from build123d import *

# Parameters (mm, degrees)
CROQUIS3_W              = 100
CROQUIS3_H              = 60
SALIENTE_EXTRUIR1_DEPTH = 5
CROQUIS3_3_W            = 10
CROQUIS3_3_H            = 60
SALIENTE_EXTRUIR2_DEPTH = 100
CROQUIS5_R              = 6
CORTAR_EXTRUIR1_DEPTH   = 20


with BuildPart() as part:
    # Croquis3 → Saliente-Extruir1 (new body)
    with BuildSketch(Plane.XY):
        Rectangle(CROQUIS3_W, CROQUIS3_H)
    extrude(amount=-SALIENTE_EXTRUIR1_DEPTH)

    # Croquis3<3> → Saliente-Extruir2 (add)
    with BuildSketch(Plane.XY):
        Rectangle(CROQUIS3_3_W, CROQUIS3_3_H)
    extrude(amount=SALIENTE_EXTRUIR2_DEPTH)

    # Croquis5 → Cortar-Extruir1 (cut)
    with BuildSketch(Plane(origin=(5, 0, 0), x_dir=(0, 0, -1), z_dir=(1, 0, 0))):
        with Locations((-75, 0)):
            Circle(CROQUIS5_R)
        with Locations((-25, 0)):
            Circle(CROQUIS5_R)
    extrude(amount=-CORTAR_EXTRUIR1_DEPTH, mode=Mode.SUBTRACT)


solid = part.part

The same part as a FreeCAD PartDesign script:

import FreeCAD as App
import Part
import Sketcher

V = App.Vector


def add_polygon(sketch, points):
    """Adds a closed chain of lines whose ends are joined by coincident constraints."""
    first, n = sketch.GeometryCount, len(points)
    for a, b in zip(points, points[1:] + points[:1]):
        sketch.addGeometry(Part.LineSegment(App.Vector(*a, 0), App.Vector(*b, 0)), False)
    for i in range(n):
        sketch.addConstraint(Sketcher.Constraint("Coincident", first + i, 2, first + (i + 1) % n, 1))

doc = App.newDocument("Part")
body = doc.addObject("PartDesign::Body", "Body")

# Sketch on XY plane
sketch1 = body.newObject("Sketcher::SketchObject", "Sketch")
sketch1.AttachmentSupport = (doc.getObject("XY_Plane"), [""])
sketch1.MapMode = "FlatFace"
add_polygon(sketch1, [(-50, 30), (-50, -30), (50, -30), (50, 30)])  # lines 0-3
sketch1.addConstraint([
    Sketcher.Constraint("Vertical", 0),
    Sketcher.Constraint("Horizontal", 1),
    Sketcher.Constraint("Vertical", 2),
    Sketcher.Constraint("Horizontal", 3),
    Sketcher.Constraint("Symmetric", 0, 2, 2, 2, -1, 1),
    Sketcher.Constraint("DistanceX", 1, 1, 1, 2, 100.0),
    Sketcher.Constraint("DistanceY", 0, 2, 0, 1, 60.0),
])
pad1 = body.newObject("PartDesign::Pad", "Pad")
pad1.Profile = sketch1
pad1.Length = 5
pad1.Reversed = True

# Sketch on XY plane
sketch2 = body.newObject("Sketcher::SketchObject", "Sketch001")
sketch2.AttachmentSupport = (doc.getObject("XY_Plane"), [""])
sketch2.MapMode = "FlatFace"
add_polygon(sketch2, [(-5, 30), (-5, -30), (5, -30), (5, 30)])  # lines 0-3
sketch2.addConstraint([
    Sketcher.Constraint("Vertical", 0),
    Sketcher.Constraint("Horizontal", 1),
    Sketcher.Constraint("Vertical", 2),
    Sketcher.Constraint("Horizontal", 3),
    Sketcher.Constraint("Symmetric", 0, 2, 2, 2, -1, 1),
    Sketcher.Constraint("DistanceX", 1, 1, 1, 2, 10.0),
    Sketcher.Constraint("DistanceY", 0, 2, 0, 1, 60.0),
])
pad2 = body.newObject("PartDesign::Pad", "Pad001")
pad2.Profile = sketch2
pad2.Length = 100

# Sketch on YZ plane
sketch3 = body.newObject("Sketcher::SketchObject", "Sketch002")
sketch3.AttachmentSupport = (doc.getObject("YZ_Plane"), [""])
sketch3.MapMode = "FlatFace"
sketch3.AttachmentOffset = App.Placement(V(0, 0, 5), App.Rotation())
sketch3.addGeometry([
    Part.Circle(V(0, 75, 0), V(0, 0, 1), 6),
    Part.Circle(V(0, 25, 0), V(0, 0, 1), 6),
], False)
sketch3.addConstraint([
    Sketcher.Constraint("Equal", 0, 1),
    Sketcher.Constraint("PointOnObject", 0, 3, -2),
    Sketcher.Constraint("PointOnObject", 1, 3, -2),
    Sketcher.Constraint("Diameter", 0, 12.0),
    Sketcher.Constraint("DistanceY", -1, 1, 0, 3, 75.0),
    Sketcher.Constraint("DistanceY", -1, 1, 1, 3, 25.0),
])
pocket1 = body.newObject("PartDesign::Pocket", "Pocket")
pocket1.Profile = sketch3
pocket1.Length = 20

doc.recompute()
